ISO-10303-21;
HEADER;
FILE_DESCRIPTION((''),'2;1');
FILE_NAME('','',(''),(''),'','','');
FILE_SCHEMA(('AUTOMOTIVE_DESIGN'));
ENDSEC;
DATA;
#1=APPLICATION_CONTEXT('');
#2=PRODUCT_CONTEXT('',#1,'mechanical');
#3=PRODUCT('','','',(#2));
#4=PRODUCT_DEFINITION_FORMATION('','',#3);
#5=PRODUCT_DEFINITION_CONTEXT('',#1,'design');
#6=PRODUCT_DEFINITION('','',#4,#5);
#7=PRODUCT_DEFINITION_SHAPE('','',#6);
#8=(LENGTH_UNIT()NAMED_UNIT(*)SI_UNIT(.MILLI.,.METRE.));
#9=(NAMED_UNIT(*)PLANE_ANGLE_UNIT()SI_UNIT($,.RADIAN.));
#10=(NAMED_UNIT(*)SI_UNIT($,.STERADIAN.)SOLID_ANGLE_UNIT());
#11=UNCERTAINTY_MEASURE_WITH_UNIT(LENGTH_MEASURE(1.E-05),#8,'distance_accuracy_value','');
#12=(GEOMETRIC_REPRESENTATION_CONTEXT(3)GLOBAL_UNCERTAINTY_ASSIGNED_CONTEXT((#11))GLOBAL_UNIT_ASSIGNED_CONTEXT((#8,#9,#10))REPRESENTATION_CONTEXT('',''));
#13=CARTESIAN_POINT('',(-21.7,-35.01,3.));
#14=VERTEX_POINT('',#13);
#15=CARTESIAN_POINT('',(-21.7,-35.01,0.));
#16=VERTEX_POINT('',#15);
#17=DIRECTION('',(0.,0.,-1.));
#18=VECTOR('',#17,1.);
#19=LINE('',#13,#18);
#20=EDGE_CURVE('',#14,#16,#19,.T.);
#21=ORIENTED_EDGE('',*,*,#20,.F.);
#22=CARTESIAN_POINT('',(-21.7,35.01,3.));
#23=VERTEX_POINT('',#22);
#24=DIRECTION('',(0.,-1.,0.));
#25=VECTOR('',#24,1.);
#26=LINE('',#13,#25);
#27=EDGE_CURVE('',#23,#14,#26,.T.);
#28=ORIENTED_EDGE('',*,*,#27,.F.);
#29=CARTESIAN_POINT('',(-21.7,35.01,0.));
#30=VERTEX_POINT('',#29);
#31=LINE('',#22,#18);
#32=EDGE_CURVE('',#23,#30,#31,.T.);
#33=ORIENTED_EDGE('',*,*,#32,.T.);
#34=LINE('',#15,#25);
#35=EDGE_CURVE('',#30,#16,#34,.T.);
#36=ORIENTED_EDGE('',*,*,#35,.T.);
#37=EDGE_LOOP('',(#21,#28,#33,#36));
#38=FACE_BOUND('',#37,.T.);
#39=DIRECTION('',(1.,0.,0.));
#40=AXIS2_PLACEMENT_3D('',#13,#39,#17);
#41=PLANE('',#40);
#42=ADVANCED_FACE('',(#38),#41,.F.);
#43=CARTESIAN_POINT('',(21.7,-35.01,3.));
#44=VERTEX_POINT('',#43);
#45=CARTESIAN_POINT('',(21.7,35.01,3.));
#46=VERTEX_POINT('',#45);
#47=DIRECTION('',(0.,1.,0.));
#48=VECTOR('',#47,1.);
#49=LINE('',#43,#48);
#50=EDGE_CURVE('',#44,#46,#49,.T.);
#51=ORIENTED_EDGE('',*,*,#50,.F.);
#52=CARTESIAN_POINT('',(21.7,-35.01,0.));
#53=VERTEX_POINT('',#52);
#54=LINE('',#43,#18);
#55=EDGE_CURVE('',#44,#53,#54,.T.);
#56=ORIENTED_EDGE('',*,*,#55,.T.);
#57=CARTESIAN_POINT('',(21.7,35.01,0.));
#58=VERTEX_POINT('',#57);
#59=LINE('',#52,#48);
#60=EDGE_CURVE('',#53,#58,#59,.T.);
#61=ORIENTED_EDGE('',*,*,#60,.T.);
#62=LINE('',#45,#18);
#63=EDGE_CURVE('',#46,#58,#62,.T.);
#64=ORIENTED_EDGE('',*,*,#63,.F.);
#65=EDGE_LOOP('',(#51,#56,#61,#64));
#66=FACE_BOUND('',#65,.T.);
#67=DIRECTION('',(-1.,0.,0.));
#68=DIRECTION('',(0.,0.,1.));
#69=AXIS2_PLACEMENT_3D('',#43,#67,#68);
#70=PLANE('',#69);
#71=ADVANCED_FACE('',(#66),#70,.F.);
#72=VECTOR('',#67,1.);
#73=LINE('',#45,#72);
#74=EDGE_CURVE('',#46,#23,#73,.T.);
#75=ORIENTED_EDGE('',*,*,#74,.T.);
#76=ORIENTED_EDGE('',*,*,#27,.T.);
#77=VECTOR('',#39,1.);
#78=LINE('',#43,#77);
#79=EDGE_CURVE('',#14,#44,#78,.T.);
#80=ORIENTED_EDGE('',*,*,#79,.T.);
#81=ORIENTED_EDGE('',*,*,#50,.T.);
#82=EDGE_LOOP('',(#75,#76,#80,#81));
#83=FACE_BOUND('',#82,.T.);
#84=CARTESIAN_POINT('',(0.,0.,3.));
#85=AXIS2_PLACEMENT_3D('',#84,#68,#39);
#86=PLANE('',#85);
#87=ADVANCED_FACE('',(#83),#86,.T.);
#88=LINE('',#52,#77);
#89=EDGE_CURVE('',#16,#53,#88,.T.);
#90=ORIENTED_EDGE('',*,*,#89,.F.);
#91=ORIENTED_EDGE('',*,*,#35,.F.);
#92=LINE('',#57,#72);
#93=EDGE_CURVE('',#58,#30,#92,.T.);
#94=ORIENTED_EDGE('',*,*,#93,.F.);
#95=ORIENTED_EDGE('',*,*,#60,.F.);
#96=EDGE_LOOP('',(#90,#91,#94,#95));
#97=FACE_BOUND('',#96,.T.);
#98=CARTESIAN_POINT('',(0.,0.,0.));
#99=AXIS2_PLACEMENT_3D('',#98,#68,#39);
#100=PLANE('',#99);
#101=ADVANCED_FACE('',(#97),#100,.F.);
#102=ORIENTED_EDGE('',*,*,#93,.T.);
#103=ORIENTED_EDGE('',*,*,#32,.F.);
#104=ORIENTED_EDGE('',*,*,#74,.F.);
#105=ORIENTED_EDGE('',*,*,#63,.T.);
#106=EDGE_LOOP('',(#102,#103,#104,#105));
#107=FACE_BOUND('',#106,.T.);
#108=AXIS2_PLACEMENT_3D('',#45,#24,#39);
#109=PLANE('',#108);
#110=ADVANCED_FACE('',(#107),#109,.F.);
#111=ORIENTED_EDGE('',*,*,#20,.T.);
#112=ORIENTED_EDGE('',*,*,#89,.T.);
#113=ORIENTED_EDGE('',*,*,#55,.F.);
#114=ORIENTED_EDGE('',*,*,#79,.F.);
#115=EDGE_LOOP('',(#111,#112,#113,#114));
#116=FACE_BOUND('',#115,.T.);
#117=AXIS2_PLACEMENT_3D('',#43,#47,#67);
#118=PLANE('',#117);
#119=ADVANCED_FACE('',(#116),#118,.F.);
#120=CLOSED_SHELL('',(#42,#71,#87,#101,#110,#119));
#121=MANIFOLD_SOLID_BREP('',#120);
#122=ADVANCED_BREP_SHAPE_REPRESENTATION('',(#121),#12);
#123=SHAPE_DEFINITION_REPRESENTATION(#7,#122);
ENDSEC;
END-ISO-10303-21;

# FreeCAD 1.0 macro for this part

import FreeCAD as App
import Part
import Sketcher
from FreeCAD import Vector

doc = App.newDocument("Part")
body = doc.addObject("PartDesign::Body", "Body")

# Sketch on XY plane
sketch1 = doc.addObject("Sketcher::SketchObject", "Sketch")
body.addObject(sketch1)
sketch1.AttachmentSupport = (doc.XY_Plane, [""])
sketch1.MapMode = "FlatFace"
sketch1.addGeometry(Part.LineSegment(Vector(-22, 35, 0), Vector(-22, -35, 0)), False)
sketch1.addGeometry(Part.LineSegment(Vector(-22, -35, 0), Vector(22, -35, 0)), False)
sketch1.addGeometry(Part.LineSegment(Vector(22, -35, 0), Vector(22, 35, 0)), False)
sketch1.addGeometry(Part.LineSegment(Vector(22, 35, 0), Vector(-22, 35, 0)), False)
sketch1.addConstraint(Sketcher.Constraint("Coincident", 0, 2, 1, 1))
sketch1.addConstraint(Sketcher.Constraint("Coincident", 1, 2, 2, 1))
sketch1.addConstraint(Sketcher.Constraint("Coincident", 2, 2, 3, 1))
sketch1.addConstraint(Sketcher.Constraint("Coincident", 3, 2, 0, 1))
sketch1.addConstraint(Sketcher.Constraint("Vertical", 0))
sketch1.addConstraint(Sketcher.Constraint("Horizontal", 1))
sketch1.addConstraint(Sketcher.Constraint("Vertical", 2))
sketch1.addConstraint(Sketcher.Constraint("Horizontal", 3))
sketch1.addConstraint(Sketcher.Constraint("Symmetric", 0, 2, 2, 2, -1, 1))
sketch1.addConstraint(Sketcher.Constraint("DistanceX", 1, 1, 1, 2, 43.4))
sketch1.addConstraint(Sketcher.Constraint("DistanceY", 0, 2, 0, 1, 70.02))
pad1 = doc.addObject("PartDesign::Pad", "Pad")
body.addObject(pad1)
pad1.Profile = sketch1
pad1.Length = 3

doc.recompute()
